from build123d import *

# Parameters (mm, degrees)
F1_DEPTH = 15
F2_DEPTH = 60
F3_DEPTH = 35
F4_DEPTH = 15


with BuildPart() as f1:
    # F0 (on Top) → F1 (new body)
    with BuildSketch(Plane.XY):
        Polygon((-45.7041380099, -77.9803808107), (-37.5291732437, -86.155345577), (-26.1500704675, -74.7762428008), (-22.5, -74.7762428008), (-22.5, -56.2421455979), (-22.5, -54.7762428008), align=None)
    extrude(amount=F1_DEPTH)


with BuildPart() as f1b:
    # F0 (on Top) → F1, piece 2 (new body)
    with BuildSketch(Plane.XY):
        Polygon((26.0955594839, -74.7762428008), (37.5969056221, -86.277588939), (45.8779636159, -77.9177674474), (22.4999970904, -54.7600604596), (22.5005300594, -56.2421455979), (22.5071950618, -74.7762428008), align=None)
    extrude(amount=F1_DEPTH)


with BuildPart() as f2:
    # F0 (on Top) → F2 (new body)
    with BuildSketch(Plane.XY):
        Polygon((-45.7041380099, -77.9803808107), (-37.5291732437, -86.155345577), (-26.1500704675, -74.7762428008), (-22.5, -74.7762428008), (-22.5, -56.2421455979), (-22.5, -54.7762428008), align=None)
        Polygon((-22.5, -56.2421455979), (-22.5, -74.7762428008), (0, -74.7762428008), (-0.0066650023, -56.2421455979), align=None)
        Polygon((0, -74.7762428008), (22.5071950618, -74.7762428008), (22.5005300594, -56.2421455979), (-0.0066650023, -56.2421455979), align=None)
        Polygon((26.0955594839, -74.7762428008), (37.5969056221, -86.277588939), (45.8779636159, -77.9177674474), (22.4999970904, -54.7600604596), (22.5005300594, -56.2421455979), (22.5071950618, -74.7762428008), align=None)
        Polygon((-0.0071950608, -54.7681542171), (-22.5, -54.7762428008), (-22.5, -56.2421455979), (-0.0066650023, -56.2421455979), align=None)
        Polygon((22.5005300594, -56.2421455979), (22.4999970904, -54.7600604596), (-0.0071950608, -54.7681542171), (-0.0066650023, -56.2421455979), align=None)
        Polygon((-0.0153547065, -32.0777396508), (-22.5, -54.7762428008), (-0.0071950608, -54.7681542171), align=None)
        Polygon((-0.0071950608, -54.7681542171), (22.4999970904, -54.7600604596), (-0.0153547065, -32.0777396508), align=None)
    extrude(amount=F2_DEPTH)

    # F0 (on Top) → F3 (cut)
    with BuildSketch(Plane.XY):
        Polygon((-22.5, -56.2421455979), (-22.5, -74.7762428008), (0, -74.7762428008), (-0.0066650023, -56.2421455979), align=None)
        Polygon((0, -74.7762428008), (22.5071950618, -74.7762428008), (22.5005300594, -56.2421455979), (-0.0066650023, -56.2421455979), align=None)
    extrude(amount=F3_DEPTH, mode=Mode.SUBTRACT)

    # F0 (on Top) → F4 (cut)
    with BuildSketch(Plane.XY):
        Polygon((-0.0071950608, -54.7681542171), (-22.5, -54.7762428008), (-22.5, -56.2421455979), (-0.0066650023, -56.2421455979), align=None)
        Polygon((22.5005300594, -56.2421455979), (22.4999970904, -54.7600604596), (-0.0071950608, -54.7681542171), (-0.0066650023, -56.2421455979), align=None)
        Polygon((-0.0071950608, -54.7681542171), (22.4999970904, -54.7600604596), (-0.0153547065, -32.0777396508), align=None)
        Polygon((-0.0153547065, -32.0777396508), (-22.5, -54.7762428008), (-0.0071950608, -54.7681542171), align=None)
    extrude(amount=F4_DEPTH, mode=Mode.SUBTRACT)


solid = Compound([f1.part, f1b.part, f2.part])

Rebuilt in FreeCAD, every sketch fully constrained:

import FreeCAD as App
import Part
import Sketcher
Q = App.Units.Quantity


def add_polygon(sketch, points):
    """Adds a closed chain of lines whose ends are joined by coincident constraints."""
    first, n = sketch.GeometryCount, len(points)
    for a, b in zip(points, points[1:] + points[:1]):
        sketch.addGeometry(Part.LineSegment(App.Vector(*a, 0), App.Vector(*b, 0)), False)
    for i in range(n):
        sketch.addConstraint(Sketcher.Constraint("Coincident", first + i, 2, first + (i + 1) % n, 1))

doc = App.newDocument("Part")
body = doc.addObject("PartDesign::Body", "Body")

# Sketch on XY plane
sketch1 = body.newObject("Sketcher::SketchObject", "Sketch")
sketch1.AttachmentSupport = (doc.getObject("XY_Plane"), [""])
sketch1.MapMode = "FlatFace"
add_polygon(sketch1, [(-45.7, -78), (-37.5, -86.2), (-26.2, -74.8), (-22.5, -74.8), (-22.5, -54.8)])  # lines 0-4
sketch1.addConstraint(Sketcher.Constraint("Horizontal", 2))
sketch1.addConstraint(Sketcher.Constraint("Vertical", 3))
sketch1.addConstraint(Sketcher.Constraint("Perpendicular", 0, 1))
sketch1.addConstraint(Sketcher.Constraint("Parallel", 1, 4))
sketch1.addConstraint(Sketcher.Constraint("DistanceY", 3, 1, 3, 2, 20.0))
sketch1.addConstraint(Sketcher.Constraint("Angle", 0, Q("-45 deg")))
sketch1.addConstraint(Sketcher.Constraint("DistanceX", 2, 2, -1, 1, 22.5))
sketch1.addConstraint(Sketcher.Constraint("DistanceX", 2, 1, 2, 2, 3.65007))
sketch1.addConstraint(Sketcher.Constraint("Distance", 1, 16.092481))
sketch1.addConstraint(Sketcher.Constraint("DistanceY", 4, 2, -1, 1, 77.980381))
pad1 = body.newObject("PartDesign::Pad", "Pad")
pad1.Profile = sketch1
pad1.Length = 15
body2 = doc.addObject("PartDesign::Body", "Body001")

# Sketch on XY plane
sketch2 = body2.newObject("Sketcher::SketchObject", "Sketch001")
sketch2.AttachmentSupport = (doc.getObject("XY_Plane001"), [""])
sketch2.MapMode = "FlatFace"
add_polygon(sketch2, [(26.1, -74.8), (37.6, -86.3), (45.9, -77.9), (22.5, -54.8), (22.5, -56.2), (22.5, -74.8)])  # lines 0-5
sketch2.addConstraint(Sketcher.Constraint("Horizontal", 5))
sketch2.addConstraint(Sketcher.Constraint("Perpendicular", 1, 2))
sketch2.addConstraint(Sketcher.Constraint("Parallel", 3, 4))
sketch2.addConstraint(Sketcher.Constraint("Angle", 0, Q("-45 deg")))
sketch2.addConstraint(Sketcher.Constraint("Distance", 4, 18.534098))
sketch2.addConstraint(Sketcher.Constraint("Distance", 0, 16.26536))
sketch2.addConstraint(Sketcher.Constraint("Distance", 1, 11.767011))
sketch2.addConstraint(Sketcher.Constraint("Distance", 2, 32.906059))
sketch2.addConstraint(Sketcher.Constraint("DistanceX", 5, 1, 5, 2, 3.588364))
sketch2.addConstraint(Sketcher.Constraint("DistanceY", 0, 2, -1, 1, 86.277589))
sketch2.addConstraint(Sketcher.Constraint("DistanceY", 2, 2, -1, 1, 54.76006))
sketch2.addConstraint(Sketcher.Constraint("DistanceX", -1, 1, 3, 2, 22.50053))
pad2 = body2.newObject("PartDesign::Pad", "Pad001")
pad2.Profile = sketch2
pad2.Length = 15
body3 = doc.addObject("PartDesign::Body", "Body002")

# Sketch on XY plane
sketch3 = body3.newObject("Sketcher::SketchObject", "Sketch002")
sketch3.AttachmentSupport = (doc.getObject("XY_Plane002"), [""])
sketch3.MapMode = "FlatFace"
add_polygon(sketch3, [(-46, -78), (-38, -86), (-26, -75), (26, -75), (38, -86), (46, -78), (22, -55), (0, -32), (-22, -55)])  # lines 0-8
sketch3.addConstraint(Sketcher.Constraint("Horizontal", 2))
sketch3.addConstraint(Sketcher.Constraint("Perpendicular", 0, 1))
sketch3.addConstraint(Sketcher.Constraint("Perpendicular", 1, 3))
sketch3.addConstraint(Sketcher.Constraint("Perpendicular", 4, 5))
sketch3.addConstraint(Sketcher.Constraint("Perpendicular", 5, 7))
sketch3.addConstraint(Sketcher.Constraint("Perpendicular", 3, 8))
sketch3.addConstraint(Sketcher.Constraint("Angle", 0, Q("-45 deg")))
sketch3.addConstraint(Sketcher.Constraint("DistanceY", 1, 2, 7, 2, 20.0))
sketch3.addConstraint(Sketcher.Constraint("DistanceX", 7, 2, -1, 1, 22.5))
sketch3.addConstraint(Sketcher.Constraint("Distance", 6, 31.959799))
sketch3.addConstraint(Sketcher.Constraint("DistanceX", 2, 1, 2, 2, 52.24563))
sketch3.addConstraint(Sketcher.Constraint("Distance", 1, 16.092481))
sketch3.addConstraint(Sketcher.Constraint("Distance", 3, 16.26536))
sketch3.addConstraint(Sketcher.Constraint("Distance", 4, 11.767011))
sketch3.addConstraint(Sketcher.Constraint("Distance", 5, 32.906059))
sketch3.addConstraint(Sketcher.Constraint("Distance", 7, 31.949669))
sketch3.addConstraint(Sketcher.Constraint("DistanceX", 1, 2, -1, 1, 26.15007))
sketch3.addConstraint(Sketcher.Constraint("DistanceY", 3, 2, -1, 1, 86.277589))
pad3 = body3.newObject("PartDesign::Pad", "Pad002")
pad3.Profile = sketch3
pad3.Length = 60

# Sketch on XY plane
sketch4 = body3.newObject("Sketcher::SketchObject", "Sketch003")
sketch4.AttachmentSupport = (doc.getObject("XY_Plane002"), [""])
sketch4.MapMode = "FlatFace"
add_polygon(sketch4, [(-22, -56), (-22, -75), (23, -75), (23, -56)])  # lines 0-3
sketch4.addConstraint(Sketcher.Constraint("Vertical", 0))
sketch4.addConstraint(Sketcher.Constraint("Horizontal", 1))
sketch4.addConstraint(Sketcher.Constraint("Horizontal", 3))
sketch4.addConstraint(Sketcher.Constraint("DistanceX", 0, 2, -1, 1, 22.5))
sketch4.addConstraint(Sketcher.Constraint("Distance", 2, 18.534098))
sketch4.addConstraint(Sketcher.Constraint("DistanceX", 3, 2, 3, 1, 45.00053))
sketch4.addConstraint(Sketcher.Constraint("DistanceX", 1, 1, 1, 2, 45.007195))
sketch4.addConstraint(Sketcher.Constraint("DistanceY", 0, 2, -1, 1, 74.776243))
pocket1 = body3.newObject("PartDesign::Pocket", "Pocket")
pocket1.Profile = sketch4
pocket1.Length = 35
pocket1.Reversed = True

# Sketch on XY plane
sketch5 = body3.newObject("Sketcher::SketchObject", "Sketch004")
sketch5.AttachmentSupport = (doc.getObject("XY_Plane002"), [""])
sketch5.MapMode = "FlatFace"
add_polygon(sketch5, [(-22.5, -54.8), (-22.5, -56.2), (22.5, -56.2), (22.5, -54.8), (0, -32.1)])  # lines 0-4
sketch5.addConstraint(Sketcher.Constraint("Vertical", 0))
sketch5.addConstraint(Sketcher.Constraint("Horizontal", 1))
sketch5.addConstraint(Sketcher.Constraint("DistanceX", 0, 2, -1, 1, 22.5))
sketch5.addConstraint(Sketcher.Constraint("Distance", 3, 31.959799))
sketch5.addConstraint(Sketcher.Constraint("DistanceX", 1, 1, 1, 2, 45.00053))
sketch5.addConstraint(Sketcher.Constraint("Distance", 4, 31.949669))
sketch5.addConstraint(Sketcher.Constraint("DistanceY", 0, 2, 0, 1, 1.465903))
sketch5.addConstraint(Sketcher.Constraint("DistanceY", 2, 2, -1, 1, 54.76006))
sketch5.addConstraint(Sketcher.Constraint("DistanceY", 3, 2, -1, 1, 32.07774))
sketch5.addConstraint(Sketcher.Constraint("Distance", 2, 1.482085))
pocket2 = body3.newObject("PartDesign::Pocket", "Pocket001")
pocket2.Profile = sketch5
pocket2.Length = 15
pocket2.Reversed = True

doc.recompute()
